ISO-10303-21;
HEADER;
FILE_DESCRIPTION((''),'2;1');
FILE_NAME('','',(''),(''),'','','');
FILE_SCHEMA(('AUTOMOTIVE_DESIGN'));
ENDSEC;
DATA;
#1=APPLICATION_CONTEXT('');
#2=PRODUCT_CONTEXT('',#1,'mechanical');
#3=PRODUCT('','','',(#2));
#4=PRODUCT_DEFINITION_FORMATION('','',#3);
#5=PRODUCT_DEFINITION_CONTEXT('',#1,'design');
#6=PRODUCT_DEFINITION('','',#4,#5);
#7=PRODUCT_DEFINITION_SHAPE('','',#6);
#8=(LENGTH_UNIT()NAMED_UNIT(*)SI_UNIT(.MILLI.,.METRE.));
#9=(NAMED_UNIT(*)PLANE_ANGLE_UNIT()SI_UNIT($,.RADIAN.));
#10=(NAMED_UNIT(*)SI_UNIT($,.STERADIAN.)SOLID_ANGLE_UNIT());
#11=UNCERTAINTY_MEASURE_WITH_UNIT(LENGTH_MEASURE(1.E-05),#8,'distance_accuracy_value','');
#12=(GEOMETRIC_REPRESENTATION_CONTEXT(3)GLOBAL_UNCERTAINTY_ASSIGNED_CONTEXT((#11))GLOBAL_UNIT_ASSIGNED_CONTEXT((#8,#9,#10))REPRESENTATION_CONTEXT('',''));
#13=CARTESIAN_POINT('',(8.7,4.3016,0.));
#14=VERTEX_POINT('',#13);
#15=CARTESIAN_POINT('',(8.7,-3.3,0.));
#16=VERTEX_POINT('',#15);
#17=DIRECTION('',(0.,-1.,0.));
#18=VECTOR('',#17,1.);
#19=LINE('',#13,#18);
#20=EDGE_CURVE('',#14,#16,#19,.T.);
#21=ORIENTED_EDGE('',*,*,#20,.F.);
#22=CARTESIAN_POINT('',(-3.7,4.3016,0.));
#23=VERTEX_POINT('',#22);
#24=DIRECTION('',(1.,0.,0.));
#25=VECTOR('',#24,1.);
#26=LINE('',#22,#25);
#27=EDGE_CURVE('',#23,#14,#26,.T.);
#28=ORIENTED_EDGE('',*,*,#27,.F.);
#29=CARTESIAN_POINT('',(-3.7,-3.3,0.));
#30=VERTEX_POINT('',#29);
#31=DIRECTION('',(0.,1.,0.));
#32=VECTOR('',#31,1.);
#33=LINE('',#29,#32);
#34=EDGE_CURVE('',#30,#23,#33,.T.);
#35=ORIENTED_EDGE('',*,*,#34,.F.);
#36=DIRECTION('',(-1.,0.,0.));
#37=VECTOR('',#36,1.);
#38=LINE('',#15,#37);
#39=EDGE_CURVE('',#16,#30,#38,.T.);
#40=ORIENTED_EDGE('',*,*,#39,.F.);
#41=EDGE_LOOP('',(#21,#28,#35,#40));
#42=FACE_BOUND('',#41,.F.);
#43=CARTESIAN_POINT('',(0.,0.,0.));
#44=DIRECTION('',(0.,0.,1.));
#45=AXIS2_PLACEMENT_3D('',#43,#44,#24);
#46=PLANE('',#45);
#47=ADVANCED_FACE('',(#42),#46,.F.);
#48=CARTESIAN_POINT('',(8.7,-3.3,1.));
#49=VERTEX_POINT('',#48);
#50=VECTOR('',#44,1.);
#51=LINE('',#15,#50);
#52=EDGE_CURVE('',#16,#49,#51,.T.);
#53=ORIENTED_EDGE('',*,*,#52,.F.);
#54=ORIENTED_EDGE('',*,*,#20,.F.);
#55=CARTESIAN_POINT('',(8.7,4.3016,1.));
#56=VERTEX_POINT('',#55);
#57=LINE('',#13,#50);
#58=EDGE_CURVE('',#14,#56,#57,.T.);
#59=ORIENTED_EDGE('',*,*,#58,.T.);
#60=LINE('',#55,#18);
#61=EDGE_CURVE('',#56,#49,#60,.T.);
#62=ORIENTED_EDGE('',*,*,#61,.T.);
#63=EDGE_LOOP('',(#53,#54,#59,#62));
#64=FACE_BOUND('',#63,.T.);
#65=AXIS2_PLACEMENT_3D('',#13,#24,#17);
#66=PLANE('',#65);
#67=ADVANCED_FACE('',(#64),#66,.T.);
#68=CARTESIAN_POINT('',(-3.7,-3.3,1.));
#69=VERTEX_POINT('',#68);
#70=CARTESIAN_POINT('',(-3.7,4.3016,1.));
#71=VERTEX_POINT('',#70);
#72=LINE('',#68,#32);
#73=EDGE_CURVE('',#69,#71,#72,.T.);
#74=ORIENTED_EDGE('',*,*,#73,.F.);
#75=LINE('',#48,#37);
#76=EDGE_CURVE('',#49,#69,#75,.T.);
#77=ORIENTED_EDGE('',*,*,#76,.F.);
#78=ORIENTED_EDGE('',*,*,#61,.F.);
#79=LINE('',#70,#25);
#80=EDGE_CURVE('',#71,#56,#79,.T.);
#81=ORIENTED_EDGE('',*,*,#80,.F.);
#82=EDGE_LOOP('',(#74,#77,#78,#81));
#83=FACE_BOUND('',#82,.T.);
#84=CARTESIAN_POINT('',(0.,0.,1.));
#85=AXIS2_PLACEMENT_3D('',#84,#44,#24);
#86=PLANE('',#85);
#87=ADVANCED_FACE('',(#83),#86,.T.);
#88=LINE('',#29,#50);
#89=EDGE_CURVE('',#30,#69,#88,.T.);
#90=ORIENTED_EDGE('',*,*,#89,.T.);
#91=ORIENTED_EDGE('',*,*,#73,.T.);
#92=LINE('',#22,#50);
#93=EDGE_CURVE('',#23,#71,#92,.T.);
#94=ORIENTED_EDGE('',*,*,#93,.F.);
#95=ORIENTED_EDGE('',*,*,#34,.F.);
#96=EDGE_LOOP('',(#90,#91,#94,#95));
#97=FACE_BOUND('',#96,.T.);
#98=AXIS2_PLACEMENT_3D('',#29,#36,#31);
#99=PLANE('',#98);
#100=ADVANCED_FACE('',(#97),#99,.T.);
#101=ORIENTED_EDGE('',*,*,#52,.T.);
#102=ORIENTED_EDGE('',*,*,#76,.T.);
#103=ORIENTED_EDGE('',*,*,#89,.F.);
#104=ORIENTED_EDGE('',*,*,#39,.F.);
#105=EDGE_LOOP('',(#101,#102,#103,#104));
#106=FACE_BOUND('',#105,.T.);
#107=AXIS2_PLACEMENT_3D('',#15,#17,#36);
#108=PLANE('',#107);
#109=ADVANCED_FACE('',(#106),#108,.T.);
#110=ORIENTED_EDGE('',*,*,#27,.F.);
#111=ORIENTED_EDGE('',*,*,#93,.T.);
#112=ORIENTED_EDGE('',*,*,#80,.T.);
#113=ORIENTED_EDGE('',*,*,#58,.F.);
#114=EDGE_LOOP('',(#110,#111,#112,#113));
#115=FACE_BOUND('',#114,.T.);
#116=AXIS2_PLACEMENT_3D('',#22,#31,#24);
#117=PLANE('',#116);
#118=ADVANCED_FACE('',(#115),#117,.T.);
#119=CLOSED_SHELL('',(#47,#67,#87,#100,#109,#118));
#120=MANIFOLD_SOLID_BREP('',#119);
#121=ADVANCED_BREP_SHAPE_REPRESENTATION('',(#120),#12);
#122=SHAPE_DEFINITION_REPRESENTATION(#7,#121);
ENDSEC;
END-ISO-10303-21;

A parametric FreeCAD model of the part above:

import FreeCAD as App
import Part
import Sketcher
from FreeCAD import Vector
Q = App.Units.Quantity


def add_polygon(sketch, points):
    """Adds a closed chain of lines whose ends are joined by coincident constraints."""
    first, n = sketch.GeometryCount, len(points)
    for a, b in zip(points, points[1:] + points[:1]):
        sketch.addGeometry(Part.LineSegment(App.Vector(*a, 0), App.Vector(*b, 0)), False)
    for i in range(n):
        sketch.addConstraint(Sketcher.Constraint("Coincident", first + i, 2, first + (i + 1) % n, 1))

doc = App.newDocument("Part")
params = doc.addObject("Spreadsheet::Sheet", "Params")
for row, (alias, value) in enumerate([
    ("sketch1_width", "12.4 mm"),
    ("pad1_length", "1 mm"),
], start=1):
    params.set(f"A{row}", alias)
    params.set(f"B{row}", "=" + value)
    params.setAlias(f"B{row}", alias)

body = doc.addObject("PartDesign::Body", "Body")

sketch1 = body.newObject("Sketcher::SketchObject", "Sketch")
sketch1.AttachmentSupport = (doc.getObject("XY_Plane"), [""])
sketch1.MapMode = "FlatFace"
add_polygon(sketch1, [(9, 4), (-4, 4), (-4, -3), (9, -3)])
sketch1.addConstraint(Sketcher.Constraint("Horizontal", 0))
sketch1.addConstraint(Sketcher.Constraint("Vertical", 1))
sketch1.addConstraint(Sketcher.Constraint("Horizontal", 2))
sketch1.addConstraint(Sketcher.Constraint("Vertical", 3))
sketch1.addConstraint(Sketcher.Constraint("DistanceX", 0, 2, 0, 1, Q("12.4 mm")))
sketch1.addConstraint(Sketcher.Constraint("DistanceX", 0, 2, -1, 1, Q("3.7 mm")))
sketch1.addConstraint(Sketcher.Constraint("DistanceY", 1, 2, -1, 1, Q("3.3 mm")))
sketch1.addConstraint(Sketcher.Constraint("DistanceY", 1, 2, 1, 1, Q("7.6016 mm")))
sketch1.setExpression("Constraints[8]", "Params.sketch1_width")
pad1 = body.newObject("PartDesign::Pad", "Pad")
pad1.Profile = sketch1
pad1.setExpression("Length", "Params.pad1_length")

doc.recompute()
